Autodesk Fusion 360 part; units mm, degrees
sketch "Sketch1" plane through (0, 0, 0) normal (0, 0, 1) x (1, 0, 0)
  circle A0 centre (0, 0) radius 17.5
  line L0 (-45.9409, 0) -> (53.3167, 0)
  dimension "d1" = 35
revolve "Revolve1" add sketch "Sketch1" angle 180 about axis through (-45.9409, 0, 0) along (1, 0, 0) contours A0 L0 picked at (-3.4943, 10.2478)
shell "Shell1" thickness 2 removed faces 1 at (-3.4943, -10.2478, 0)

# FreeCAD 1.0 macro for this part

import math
import FreeCAD as App
import Part
import Sketcher

V = App.Vector


def faces_at(feature, points):
    """Names of the faces that lie closest to the given points."""
    faces = feature.Shape.Faces
    near = lambda p: min(range(len(faces)), key=lambda i: faces[i].distToShape(Part.Vertex(*p))[0])
    return sorted({f"Face{near(p) + 1}" for p in points})

doc = App.newDocument("Part")
params = doc.addObject("Spreadsheet::Sheet", "Params")
for row, (alias, value) in enumerate([
    ("sketch1_radius", "17.5 mm"),
    ("revolution_angle", "180 deg"),
    ("thickness_wall", "2 mm"),
], start=1):
    params.set(f"A{row}", alias)
    params.set(f"B{row}", "=" + value)
    params.setAlias(f"B{row}", alias)

body = doc.addObject("PartDesign::Body", "Body")

sketch1 = doc.addObject("Sketcher::SketchObject", "Sketch")
body.addObject(sketch1)
sketch1.AttachmentSupport = (doc.XY_Plane, [""])
sketch1.MapMode = "FlatFace"
sketch1.addGeometry(Part.LineSegment(V(-18, 0, 0), V(18, 0, 0)), False)
sketch1.addGeometry(Part.ArcOfCircle(Part.Circle(V(0, 0, 0), V(0, 0, 1), 18), math.radians(0), math.radians(180)), False)
sketch1.addConstraint(Sketcher.Constraint("Coincident", 0, 1, 1, 2))
sketch1.addConstraint(Sketcher.Constraint("Coincident", 1, 1, 0, 2))
sketch1.addConstraint(Sketcher.Constraint("Horizontal", 0))
sketch1.addConstraint(Sketcher.Constraint("Coincident", 1, 3, -1, 1))
sketch1.addConstraint(Sketcher.Constraint("PointOnObject", 0, 1, -1))
sketch1.addConstraint(Sketcher.Constraint("Radius", 1, 17.5))
sketch1.setExpression("Constraints[5]", "Params.sketch1_radius")
revolution = doc.addObject("PartDesign::Revolution", "Revolution")
body.addObject(revolution)
revolution.Profile = sketch1
revolution.ReferenceAxis = (sketch1, ["H_Axis"])
revolution.setExpression("Angle", "Params.revolution_angle")
doc.recompute()

thickness = doc.addObject("PartDesign::Thickness", "Thickness")
body.addObject(thickness)
thickness.Base = (revolution, faces_at(revolution, [(-3.494, -10.248, 0)]))
thickness.setExpression("Value", "Params.thickness_wall")
thickness.Reversed = True
thickness.Join = "Intersection"

doc.recompute()
